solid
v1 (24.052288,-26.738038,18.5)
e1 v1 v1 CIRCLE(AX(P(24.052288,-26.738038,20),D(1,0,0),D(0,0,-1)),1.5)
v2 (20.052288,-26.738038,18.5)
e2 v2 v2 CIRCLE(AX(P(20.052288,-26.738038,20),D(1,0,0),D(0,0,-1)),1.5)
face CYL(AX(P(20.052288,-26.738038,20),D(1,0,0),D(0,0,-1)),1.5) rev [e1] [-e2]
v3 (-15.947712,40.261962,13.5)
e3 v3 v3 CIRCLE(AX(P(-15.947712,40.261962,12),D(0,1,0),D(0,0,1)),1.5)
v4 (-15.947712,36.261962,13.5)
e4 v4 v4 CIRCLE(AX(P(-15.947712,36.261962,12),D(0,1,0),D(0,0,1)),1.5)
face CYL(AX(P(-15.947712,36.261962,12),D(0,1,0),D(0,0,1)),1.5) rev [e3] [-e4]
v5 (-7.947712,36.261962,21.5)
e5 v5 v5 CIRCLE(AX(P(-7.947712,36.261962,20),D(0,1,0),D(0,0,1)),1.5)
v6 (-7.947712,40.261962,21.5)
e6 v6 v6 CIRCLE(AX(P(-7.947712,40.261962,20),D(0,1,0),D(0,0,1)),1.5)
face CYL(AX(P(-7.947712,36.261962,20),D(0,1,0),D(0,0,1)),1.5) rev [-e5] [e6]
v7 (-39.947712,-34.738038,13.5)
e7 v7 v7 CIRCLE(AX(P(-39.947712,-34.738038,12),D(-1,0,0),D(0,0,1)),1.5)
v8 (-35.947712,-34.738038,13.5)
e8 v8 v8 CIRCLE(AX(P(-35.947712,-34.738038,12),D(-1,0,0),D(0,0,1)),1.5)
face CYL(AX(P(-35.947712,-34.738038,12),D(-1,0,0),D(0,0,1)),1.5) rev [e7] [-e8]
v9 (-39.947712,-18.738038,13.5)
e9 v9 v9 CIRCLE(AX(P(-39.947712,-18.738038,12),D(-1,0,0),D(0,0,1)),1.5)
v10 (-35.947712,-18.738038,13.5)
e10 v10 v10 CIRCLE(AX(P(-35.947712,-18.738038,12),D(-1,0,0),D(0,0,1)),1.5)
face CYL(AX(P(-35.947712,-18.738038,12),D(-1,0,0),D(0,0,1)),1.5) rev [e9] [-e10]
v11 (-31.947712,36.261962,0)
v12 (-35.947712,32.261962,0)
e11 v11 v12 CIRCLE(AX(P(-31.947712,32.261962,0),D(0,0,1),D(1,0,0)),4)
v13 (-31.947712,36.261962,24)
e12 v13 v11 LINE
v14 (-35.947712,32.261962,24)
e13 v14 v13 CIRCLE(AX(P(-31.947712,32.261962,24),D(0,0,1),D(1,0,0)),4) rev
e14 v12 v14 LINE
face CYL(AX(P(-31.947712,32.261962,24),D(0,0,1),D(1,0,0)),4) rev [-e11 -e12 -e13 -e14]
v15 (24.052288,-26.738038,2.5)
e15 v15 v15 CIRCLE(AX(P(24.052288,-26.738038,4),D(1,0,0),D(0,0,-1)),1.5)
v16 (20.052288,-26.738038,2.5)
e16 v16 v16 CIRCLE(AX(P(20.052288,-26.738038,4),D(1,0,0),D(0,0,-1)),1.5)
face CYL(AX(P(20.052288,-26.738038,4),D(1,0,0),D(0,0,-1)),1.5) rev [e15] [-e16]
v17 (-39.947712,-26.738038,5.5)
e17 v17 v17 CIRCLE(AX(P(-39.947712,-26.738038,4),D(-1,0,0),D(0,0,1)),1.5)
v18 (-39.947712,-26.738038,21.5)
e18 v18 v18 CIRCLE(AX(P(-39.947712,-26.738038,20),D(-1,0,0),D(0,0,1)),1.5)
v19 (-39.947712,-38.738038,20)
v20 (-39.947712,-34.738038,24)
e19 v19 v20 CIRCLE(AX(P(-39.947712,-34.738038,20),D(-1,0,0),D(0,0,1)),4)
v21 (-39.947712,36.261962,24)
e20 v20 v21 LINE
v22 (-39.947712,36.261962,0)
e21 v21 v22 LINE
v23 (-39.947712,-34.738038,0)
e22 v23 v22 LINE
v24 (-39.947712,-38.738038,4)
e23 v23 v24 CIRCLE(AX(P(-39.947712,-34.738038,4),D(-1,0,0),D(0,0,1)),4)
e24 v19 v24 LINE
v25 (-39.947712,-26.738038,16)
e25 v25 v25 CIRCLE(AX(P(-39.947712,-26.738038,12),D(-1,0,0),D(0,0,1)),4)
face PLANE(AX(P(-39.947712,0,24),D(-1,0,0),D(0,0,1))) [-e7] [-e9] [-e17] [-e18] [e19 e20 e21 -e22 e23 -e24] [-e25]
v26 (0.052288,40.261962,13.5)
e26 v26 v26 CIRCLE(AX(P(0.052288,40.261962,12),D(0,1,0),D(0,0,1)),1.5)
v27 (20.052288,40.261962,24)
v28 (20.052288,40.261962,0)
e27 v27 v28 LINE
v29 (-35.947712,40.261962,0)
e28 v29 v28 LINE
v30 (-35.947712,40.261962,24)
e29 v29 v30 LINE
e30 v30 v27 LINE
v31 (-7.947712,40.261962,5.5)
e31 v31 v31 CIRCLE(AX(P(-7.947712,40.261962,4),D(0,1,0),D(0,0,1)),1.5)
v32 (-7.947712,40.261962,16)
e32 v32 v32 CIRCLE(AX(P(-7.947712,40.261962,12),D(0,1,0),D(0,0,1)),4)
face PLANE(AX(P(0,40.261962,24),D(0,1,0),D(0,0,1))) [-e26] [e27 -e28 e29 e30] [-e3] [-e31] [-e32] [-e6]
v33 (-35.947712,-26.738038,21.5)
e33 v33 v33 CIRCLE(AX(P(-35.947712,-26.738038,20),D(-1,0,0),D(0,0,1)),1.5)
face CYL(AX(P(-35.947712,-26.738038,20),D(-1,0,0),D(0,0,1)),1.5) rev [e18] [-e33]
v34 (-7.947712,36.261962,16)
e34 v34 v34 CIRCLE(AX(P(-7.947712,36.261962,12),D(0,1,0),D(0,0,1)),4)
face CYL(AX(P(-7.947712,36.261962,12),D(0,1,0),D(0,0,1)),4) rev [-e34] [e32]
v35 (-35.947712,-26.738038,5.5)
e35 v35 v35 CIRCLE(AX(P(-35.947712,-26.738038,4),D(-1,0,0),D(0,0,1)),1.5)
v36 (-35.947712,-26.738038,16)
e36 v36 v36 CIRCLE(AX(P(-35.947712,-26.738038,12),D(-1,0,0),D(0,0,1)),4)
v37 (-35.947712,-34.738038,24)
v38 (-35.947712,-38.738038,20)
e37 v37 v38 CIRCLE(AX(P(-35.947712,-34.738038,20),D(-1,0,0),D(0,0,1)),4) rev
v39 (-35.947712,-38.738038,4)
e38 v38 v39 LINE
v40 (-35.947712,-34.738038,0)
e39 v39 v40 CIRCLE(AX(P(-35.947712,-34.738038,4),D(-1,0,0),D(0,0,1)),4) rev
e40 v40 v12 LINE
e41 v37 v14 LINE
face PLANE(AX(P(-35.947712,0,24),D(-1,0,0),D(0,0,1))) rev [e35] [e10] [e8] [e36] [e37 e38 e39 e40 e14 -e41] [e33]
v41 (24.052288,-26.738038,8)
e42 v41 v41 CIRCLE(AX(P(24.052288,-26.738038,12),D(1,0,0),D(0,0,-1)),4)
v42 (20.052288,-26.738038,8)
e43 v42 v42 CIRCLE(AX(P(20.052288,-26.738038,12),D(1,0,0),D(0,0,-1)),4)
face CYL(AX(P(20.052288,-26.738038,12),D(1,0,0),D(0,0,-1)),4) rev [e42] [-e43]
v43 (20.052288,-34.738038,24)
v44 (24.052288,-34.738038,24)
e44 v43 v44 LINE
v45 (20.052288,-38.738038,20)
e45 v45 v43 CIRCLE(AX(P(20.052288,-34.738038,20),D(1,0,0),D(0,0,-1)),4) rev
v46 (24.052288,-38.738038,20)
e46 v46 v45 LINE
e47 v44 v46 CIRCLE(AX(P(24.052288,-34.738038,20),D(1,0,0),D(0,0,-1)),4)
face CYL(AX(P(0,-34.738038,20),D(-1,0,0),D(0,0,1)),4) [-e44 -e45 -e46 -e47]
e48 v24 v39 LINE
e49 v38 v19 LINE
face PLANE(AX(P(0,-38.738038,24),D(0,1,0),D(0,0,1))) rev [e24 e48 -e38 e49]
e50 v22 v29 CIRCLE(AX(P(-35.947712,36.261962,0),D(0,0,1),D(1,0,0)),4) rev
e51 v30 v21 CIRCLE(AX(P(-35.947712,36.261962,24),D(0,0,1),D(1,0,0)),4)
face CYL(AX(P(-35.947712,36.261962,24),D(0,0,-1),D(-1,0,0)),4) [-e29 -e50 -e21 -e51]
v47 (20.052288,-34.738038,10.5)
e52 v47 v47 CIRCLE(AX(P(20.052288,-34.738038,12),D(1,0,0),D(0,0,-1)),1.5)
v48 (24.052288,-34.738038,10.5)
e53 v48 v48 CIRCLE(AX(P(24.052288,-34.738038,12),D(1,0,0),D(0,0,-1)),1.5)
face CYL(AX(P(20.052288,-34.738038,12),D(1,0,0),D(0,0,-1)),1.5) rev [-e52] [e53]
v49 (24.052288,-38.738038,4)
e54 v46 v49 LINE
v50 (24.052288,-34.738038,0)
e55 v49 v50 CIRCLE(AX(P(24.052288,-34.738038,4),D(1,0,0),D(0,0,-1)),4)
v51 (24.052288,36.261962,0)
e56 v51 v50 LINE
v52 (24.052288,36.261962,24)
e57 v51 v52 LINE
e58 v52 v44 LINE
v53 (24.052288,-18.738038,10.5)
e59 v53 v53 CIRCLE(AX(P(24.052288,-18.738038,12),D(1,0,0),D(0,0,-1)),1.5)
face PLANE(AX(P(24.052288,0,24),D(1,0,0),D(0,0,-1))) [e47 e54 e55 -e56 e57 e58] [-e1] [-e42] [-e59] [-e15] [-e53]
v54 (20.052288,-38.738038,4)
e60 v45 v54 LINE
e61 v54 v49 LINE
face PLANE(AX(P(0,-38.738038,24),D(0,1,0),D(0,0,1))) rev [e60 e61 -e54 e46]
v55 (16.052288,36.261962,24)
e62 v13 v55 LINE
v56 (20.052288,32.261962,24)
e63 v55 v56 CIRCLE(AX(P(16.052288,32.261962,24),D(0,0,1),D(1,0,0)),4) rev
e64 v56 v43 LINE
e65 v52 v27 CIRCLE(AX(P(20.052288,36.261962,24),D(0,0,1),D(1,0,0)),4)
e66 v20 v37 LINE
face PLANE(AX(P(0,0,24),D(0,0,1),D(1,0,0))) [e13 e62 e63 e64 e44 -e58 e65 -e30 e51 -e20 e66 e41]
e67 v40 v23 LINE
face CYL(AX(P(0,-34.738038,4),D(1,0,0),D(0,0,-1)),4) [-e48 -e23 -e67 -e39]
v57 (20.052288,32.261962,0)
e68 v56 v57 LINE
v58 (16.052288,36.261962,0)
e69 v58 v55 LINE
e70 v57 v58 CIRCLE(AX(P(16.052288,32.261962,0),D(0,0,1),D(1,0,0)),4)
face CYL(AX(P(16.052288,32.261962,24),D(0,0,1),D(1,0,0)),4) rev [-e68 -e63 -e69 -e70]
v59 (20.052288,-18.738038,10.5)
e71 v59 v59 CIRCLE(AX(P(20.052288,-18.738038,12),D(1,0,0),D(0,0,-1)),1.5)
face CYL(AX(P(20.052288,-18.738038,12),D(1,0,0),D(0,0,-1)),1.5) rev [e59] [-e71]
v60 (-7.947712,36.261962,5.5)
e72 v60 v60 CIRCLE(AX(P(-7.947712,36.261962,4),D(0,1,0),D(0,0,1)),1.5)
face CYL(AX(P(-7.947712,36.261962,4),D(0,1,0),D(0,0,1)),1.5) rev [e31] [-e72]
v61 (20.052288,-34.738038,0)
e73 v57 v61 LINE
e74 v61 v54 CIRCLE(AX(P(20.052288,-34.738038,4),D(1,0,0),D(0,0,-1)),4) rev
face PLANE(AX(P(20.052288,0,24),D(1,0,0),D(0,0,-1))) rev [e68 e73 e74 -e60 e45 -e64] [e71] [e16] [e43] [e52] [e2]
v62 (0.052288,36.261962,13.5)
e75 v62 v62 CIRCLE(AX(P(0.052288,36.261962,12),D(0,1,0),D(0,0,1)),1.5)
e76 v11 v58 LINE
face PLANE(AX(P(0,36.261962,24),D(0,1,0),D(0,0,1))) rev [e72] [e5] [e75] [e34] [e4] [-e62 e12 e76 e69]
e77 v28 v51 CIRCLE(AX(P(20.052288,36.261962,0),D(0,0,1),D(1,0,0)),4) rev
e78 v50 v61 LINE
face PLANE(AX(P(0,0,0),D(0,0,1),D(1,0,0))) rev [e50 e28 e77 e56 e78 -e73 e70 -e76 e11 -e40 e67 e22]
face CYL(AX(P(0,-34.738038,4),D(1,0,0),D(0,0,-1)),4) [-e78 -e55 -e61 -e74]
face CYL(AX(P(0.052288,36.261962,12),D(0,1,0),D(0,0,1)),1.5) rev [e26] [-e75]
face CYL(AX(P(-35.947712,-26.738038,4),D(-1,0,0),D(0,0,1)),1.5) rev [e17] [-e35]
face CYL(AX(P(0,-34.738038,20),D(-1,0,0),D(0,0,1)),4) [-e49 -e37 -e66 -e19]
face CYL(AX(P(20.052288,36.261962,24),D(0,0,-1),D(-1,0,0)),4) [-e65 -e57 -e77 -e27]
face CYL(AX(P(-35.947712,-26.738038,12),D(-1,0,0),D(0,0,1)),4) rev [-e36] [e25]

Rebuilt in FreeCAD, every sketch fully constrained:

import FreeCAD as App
import Part
import Sketcher


def edges_at(feature, points):
    """Names of the edges that pass closest to the given points."""
    edges = feature.Shape.Edges
    near = lambda p: min(range(len(edges)), key=lambda i: edges[i].distToShape(Part.Vertex(*p))[0])
    return sorted({f"Edge{near(p) + 1}" for p in points})


def add_polygon(sketch, points):
    """Adds a closed chain of lines whose ends are joined by coincident constraints."""
    first, n = sketch.GeometryCount, len(points)
    for a, b in zip(points, points[1:] + points[:1]):
        sketch.addGeometry(Part.LineSegment(App.Vector(*a, 0), App.Vector(*b, 0)), False)
    for i in range(n):
        sketch.addConstraint(Sketcher.Constraint("Coincident", first + i, 2, first + (i + 1) % n, 1))

doc = App.newDocument("Part")
body = doc.addObject("PartDesign::Body", "Body")

sketch1 = doc.addObject("Sketcher::SketchObject", "Sketch")
body.addObject(sketch1)
sketch1.AttachmentSupport = (doc.XY_Plane, [""])
sketch1.MapMode = "FlatFace"
add_polygon(sketch1, [(-35.9, -38.7), (-35.9, 36.3), (20.1, 36.3), (20.1, -38.7), (24.1, -38.7), (24.1, 40.3), (-39.9, 40.3), (-39.9, -38.7)])
sketch1.addConstraint(Sketcher.Constraint("Vertical", 0))
sketch1.addConstraint(Sketcher.Constraint("Horizontal", 1))
sketch1.addConstraint(Sketcher.Constraint("Vertical", 2))
sketch1.addConstraint(Sketcher.Constraint("Horizontal", 3))
sketch1.addConstraint(Sketcher.Constraint("Vertical", 4))
sketch1.addConstraint(Sketcher.Constraint("Horizontal", 5))
sketch1.addConstraint(Sketcher.Constraint("Vertical", 6))
sketch1.addConstraint(Sketcher.Constraint("Horizontal", 7))
sketch1.addConstraint(Sketcher.Constraint("Horizontal", 3, 2, 6, 2))
sketch1.addConstraint(Sketcher.Constraint("Equal", 3, 7))
sketch1.addConstraint(Sketcher.Constraint("DistanceX", 1, 1, 1, 2, 56.0))
sketch1.addConstraint(Sketcher.Constraint("DistanceX", 3, 1, 3, 2, 4.0))
sketch1.addConstraint(Sketcher.Constraint("DistanceY", 0, 1, 0, 2, 75.0))
sketch1.addConstraint(Sketcher.Constraint("DistanceY", 4, 1, 4, 2, 79.0))
sketch1.addConstraint(Sketcher.Constraint("DistanceY", -1, 1, 0, 2, 36.261962))
sketch1.addConstraint(Sketcher.Constraint("DistanceX", 0, 2, -1, 1, 35.947712))
pad1 = doc.addObject("PartDesign::Pad", "Pad")
body.addObject(pad1)
pad1.Profile = sketch1
pad1.Length = 24

sketch2 = doc.addObject("Sketcher::SketchObject", "Sketch001")
body.addObject(sketch2)
sketch2.AttachmentSupport = (doc.YZ_Plane, [""])
sketch2.MapMode = "FlatFace"
sketch2.AttachmentOffset = App.Placement(App.Vector(0, 0, 24.052288), App.Rotation())
sketch2.addGeometry(Part.Circle(App.Vector(-26.7, 12, 0), App.Vector(0, 0, 1), 4), False)
sketch2.addGeometry(Part.Circle(App.Vector(-26.7, 4, 0), App.Vector(0, 0, 1), 1.5), False)
sketch2.addGeometry(Part.Circle(App.Vector(-34.7, 12, 0), App.Vector(0, 0, 1), 1.5), False)
sketch2.addGeometry(Part.Circle(App.Vector(-26.7, 20, 0), App.Vector(0, 0, 1), 1.5), False)
sketch2.addGeometry(Part.Circle(App.Vector(-18.7, 12, 0), App.Vector(0, 0, 1), 1.5), False)
sketch2.addConstraint(Sketcher.Constraint("Equal", 1, 2))
sketch2.addConstraint(Sketcher.Constraint("Equal", 2, 3))
sketch2.addConstraint(Sketcher.Constraint("Equal", 3, 4))
sketch2.addConstraint(Sketcher.Constraint("Horizontal", 0, 3, 2, 3))
sketch2.addConstraint(Sketcher.Constraint("Horizontal", 2, 3, 4, 3))
sketch2.addConstraint(Sketcher.Constraint("Vertical", 0, 3, 1, 3))
sketch2.addConstraint(Sketcher.Constraint("Vertical", 1, 3, 3, 3))
sketch2.addConstraint(Sketcher.Constraint("Diameter", 0, 8.0))
sketch2.addConstraint(Sketcher.Constraint("Diameter", 1, 3.0))
sketch2.addConstraint(Sketcher.Constraint("DistanceY", -1, 1, 0, 3, 12.0))
sketch2.addConstraint(Sketcher.Constraint("DistanceY", -1, 1, 1, 3, 4.0))
sketch2.addConstraint(Sketcher.Constraint("DistanceY", -1, 1, 3, 3, 20.0))
sketch2.addConstraint(Sketcher.Constraint("DistanceX", 2, 3, 0, 3, 8.0))
sketch2.addConstraint(Sketcher.Constraint("DistanceX", 0, 3, 4, 3, 8.0))
sketch2.addConstraint(Sketcher.Constraint("DistanceX", 0, 3, -1, 1, 26.738038))
pocket1 = doc.addObject("PartDesign::Pocket", "Pocket")
body.addObject(pocket1)
pocket1.Profile = sketch2
pocket1.Length = 4

sketch3 = doc.addObject("Sketcher::SketchObject", "Sketch002")
body.addObject(sketch3)
sketch3.AttachmentSupport = (doc.YZ_Plane, [""])
sketch3.MapMode = "FlatFace"
sketch3.AttachmentOffset = App.Placement(App.Vector(0, 0, -39.947712), App.Rotation())
sketch3.addGeometry(Part.Circle(App.Vector(-26.7, 12, 0), App.Vector(0, 0, 1), 4), False)
sketch3.addGeometry(Part.Circle(App.Vector(-26.7, 20, 0), App.Vector(0, 0, 1), 1.5), False)
sketch3.addGeometry(Part.Circle(App.Vector(-34.7, 12, 0), App.Vector(0, 0, 1), 1.5), False)
sketch3.addGeometry(Part.Circle(App.Vector(-26.7, 4, 0), App.Vector(0, 0, 1), 1.5), False)
sketch3.addGeometry(Part.Circle(App.Vector(-18.7, 12, 0), App.Vector(0, 0, 1), 1.5), False)
sketch3.addConstraint(Sketcher.Constraint("Equal", 1, 2))
sketch3.addConstraint(Sketcher.Constraint("Equal", 2, 3))
sketch3.addConstraint(Sketcher.Constraint("Equal", 3, 4))
sketch3.addConstraint(Sketcher.Constraint("Horizontal", 0, 3, 2, 3))
sketch3.addConstraint(Sketcher.Constraint("Horizontal", 2, 3, 4, 3))
sketch3.addConstraint(Sketcher.Constraint("Vertical", 0, 3, 1, 3))
sketch3.addConstraint(Sketcher.Constraint("Vertical", 1, 3, 3, 3))
sketch3.addConstraint(Sketcher.Constraint("Diameter", 0, 8.0))
sketch3.addConstraint(Sketcher.Constraint("Diameter", 1, 3.0))
sketch3.addConstraint(Sketcher.Constraint("DistanceY", -1, 1, 0, 3, 12.0))
sketch3.addConstraint(Sketcher.Constraint("DistanceY", -1, 1, 1, 3, 20.0))
sketch3.addConstraint(Sketcher.Constraint("DistanceY", -1, 1, 3, 3, 4.0))
sketch3.addConstraint(Sketcher.Constraint("DistanceX", 2, 3, 0, 3, 8.0))
sketch3.addConstraint(Sketcher.Constraint("DistanceX", 0, 3, 4, 3, 8.0))
sketch3.addConstraint(Sketcher.Constraint("DistanceX", 0, 3, -1, 1, 26.738038))
pocket2 = doc.addObject("PartDesign::Pocket", "Pocket001")
body.addObject(pocket2)
pocket2.Profile = sketch3
pocket2.Length = 4
pocket2.Reversed = True
doc.recompute()

fillet = doc.addObject("PartDesign::Fillet", "Fillet")
body.addObject(fillet)
fillet.Base = (pocket2, edges_at(pocket2, [
    (22.052, -38.738, 0),
    (20.052, 36.262, 12),
    (-35.948, 36.262, 12),
    (-39.948, 40.262, 12),
    (24.052, 40.262, 12),
    (-37.948, -38.738, 24),
    (22.052, -38.738, 24),
    (-37.948, -38.738, 0),
]))
fillet.Radius = 4

sketch4 = doc.addObject("Sketcher::SketchObject", "Sketch003")
body.addObject(sketch4)
sketch4.AttachmentSupport = (doc.XZ_Plane, [""])
sketch4.MapMode = "FlatFace"
sketch4.AttachmentOffset = App.Placement(App.Vector(0, 0, -40.261962), App.Rotation())
sketch4.addGeometry(Part.Circle(App.Vector(-7.9, 12, 0), App.Vector(0, 0, 1), 4), False)
sketch4.addGeometry(Part.Circle(App.Vector(0.1, 12, 0), App.Vector(0, 0, 1), 1.5), False)
sketch4.addGeometry(Part.Circle(App.Vector(-7.9, 20, 0), App.Vector(0, 0, 1), 1.5), False)
sketch4.addGeometry(Part.Circle(App.Vector(-15.9, 12, 0), App.Vector(0, 0, 1), 1.5), False)
sketch4.addGeometry(Part.Circle(App.Vector(-7.9, 4, 0), App.Vector(0, 0, 1), 1.5), False)
sketch4.addConstraint(Sketcher.Constraint("Equal", 1, 2))
sketch4.addConstraint(Sketcher.Constraint("Equal", 2, 3))
sketch4.addConstraint(Sketcher.Constraint("Equal", 3, 4))
sketch4.addConstraint(Sketcher.Constraint("Horizontal", 0, 3, 1, 3))
sketch4.addConstraint(Sketcher.Constraint("Horizontal", 1, 3, 3, 3))
sketch4.addConstraint(Sketcher.Constraint("Vertical", 0, 3, 2, 3))
sketch4.addConstraint(Sketcher.Constraint("Vertical", 2, 3, 4, 3))
sketch4.addConstraint(Sketcher.Constraint("Diameter", 0, 8.0))
sketch4.addConstraint(Sketcher.Constraint("Diameter", 1, 3.0))
sketch4.addConstraint(Sketcher.Constraint("DistanceY", -1, 1, 0, 3, 12.0))
sketch4.addConstraint(Sketcher.Constraint("DistanceY", -1, 1, 2, 3, 20.0))
sketch4.addConstraint(Sketcher.Constraint("DistanceY", -1, 1, 4, 3, 4.0))
sketch4.addConstraint(Sketcher.Constraint("DistanceX", 0, 3, 1, 3, 8.0))
sketch4.addConstraint(Sketcher.Constraint("DistanceX", 3, 3, 0, 3, 8.0))
sketch4.addConstraint(Sketcher.Constraint("DistanceX", 0, 3, -1, 1, 7.947712))
pocket3 = doc.addObject("PartDesign::Pocket", "Pocket002")
body.addObject(pocket3)
pocket3.Profile = sketch4
pocket3.Length = 4
pocket3.Reversed = True

doc.recompute()
